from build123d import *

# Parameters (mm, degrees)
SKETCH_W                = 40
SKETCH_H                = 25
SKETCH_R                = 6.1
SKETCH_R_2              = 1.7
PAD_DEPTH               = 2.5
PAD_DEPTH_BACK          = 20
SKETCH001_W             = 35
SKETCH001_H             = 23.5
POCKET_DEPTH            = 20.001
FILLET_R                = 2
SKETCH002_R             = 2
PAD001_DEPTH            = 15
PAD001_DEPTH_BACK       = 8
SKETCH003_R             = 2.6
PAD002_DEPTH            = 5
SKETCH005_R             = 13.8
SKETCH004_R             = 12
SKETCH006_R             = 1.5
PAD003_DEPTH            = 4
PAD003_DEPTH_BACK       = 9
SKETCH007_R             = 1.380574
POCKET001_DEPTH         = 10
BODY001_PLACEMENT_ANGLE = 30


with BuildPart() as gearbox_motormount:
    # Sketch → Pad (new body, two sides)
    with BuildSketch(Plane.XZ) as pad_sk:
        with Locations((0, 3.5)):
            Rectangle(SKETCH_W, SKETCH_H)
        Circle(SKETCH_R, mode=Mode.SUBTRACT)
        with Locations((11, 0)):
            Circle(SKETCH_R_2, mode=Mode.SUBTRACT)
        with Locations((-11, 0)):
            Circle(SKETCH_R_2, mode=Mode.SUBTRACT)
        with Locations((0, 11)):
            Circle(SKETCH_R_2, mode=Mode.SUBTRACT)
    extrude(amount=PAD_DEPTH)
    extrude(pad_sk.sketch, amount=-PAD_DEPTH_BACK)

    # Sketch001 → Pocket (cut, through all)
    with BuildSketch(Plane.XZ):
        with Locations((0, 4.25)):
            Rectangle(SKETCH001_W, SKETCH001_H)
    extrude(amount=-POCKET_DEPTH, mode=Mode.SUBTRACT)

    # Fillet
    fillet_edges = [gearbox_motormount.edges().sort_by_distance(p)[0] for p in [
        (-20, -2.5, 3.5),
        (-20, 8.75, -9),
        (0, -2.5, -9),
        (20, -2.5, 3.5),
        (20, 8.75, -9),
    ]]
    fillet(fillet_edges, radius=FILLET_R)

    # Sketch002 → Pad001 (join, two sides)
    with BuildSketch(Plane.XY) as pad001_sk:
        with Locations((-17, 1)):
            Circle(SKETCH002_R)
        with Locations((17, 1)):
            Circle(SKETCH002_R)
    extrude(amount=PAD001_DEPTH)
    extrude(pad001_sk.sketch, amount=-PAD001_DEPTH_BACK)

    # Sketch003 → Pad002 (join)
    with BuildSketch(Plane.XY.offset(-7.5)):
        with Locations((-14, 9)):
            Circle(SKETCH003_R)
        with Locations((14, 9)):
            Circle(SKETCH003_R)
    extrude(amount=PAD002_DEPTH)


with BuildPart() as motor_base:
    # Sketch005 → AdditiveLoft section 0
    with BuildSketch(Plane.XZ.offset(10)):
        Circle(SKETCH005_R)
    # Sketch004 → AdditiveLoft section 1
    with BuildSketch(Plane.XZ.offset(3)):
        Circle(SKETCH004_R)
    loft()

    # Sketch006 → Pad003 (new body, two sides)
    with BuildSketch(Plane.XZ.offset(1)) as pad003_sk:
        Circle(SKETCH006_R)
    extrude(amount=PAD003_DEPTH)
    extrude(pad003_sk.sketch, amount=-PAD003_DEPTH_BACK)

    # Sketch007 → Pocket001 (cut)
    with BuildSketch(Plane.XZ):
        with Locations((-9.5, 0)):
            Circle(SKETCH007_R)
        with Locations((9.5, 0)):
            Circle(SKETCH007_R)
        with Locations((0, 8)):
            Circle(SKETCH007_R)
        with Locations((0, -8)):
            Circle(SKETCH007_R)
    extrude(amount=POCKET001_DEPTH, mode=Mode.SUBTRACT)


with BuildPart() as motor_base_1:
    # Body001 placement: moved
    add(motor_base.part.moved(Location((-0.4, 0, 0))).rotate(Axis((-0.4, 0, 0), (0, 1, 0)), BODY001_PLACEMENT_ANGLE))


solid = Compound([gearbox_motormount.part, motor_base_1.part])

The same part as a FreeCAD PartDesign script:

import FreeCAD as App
import Part
import Sketcher
from FreeCAD import Vector
Q = App.Units.Quantity


def edges_at(feature, points):
    """Names of the edges that pass closest to the given points."""
    edges = feature.Shape.Edges
    near = lambda p: min(range(len(edges)), key=lambda i: edges[i].distToShape(Part.Vertex(*p))[0])
    return sorted({f"Edge{near(p) + 1}" for p in points})


def add_polygon(sketch, points):
    """Adds a closed chain of lines whose ends are joined by coincident constraints."""
    first, n = sketch.GeometryCount, len(points)
    for a, b in zip(points, points[1:] + points[:1]):
        sketch.addGeometry(Part.LineSegment(App.Vector(*a, 0), App.Vector(*b, 0)), False)
    for i in range(n):
        sketch.addConstraint(Sketcher.Constraint("Coincident", first + i, 2, first + (i + 1) % n, 1))

doc = App.newDocument("Part")
body = doc.addObject("PartDesign::Body", "Body")

sketch1 = body.newObject("Sketcher::SketchObject", "Sketch")
sketch1.AttachmentSupport = (doc.getObject("XZ_Plane"), [""])
sketch1.MapMode = "FlatFace"
add_polygon(sketch1, [(-20, 16), (-20, -9), (20, -9), (20, 16)])
sketch1.addGeometry(Part.Circle(Vector(-11, 0, 0), Vector(0, 0, 1), 1.7), False)
sketch1.addGeometry(Part.Circle(Vector(0, 0, 0), Vector(0, 0, 1), 6.1), False)
sketch1.addGeometry(Part.Circle(Vector(11, 0, 0), Vector(0, 0, 1), 1.7), False)
sketch1.addGeometry(Part.Circle(Vector(0, 11, 0), Vector(0, 0, 1), 1.7), False)
sketch1.addConstraint([
    Sketcher.Constraint("Vertical", 0),
    Sketcher.Constraint("Horizontal", 1),
    Sketcher.Constraint("Vertical", 2),
    Sketcher.Constraint("Horizontal", 3),
    Sketcher.Constraint("Coincident", 5, 3, -1, 1),
    Sketcher.Constraint("Equal", 4, 6),
    Sketcher.Constraint("Equal", 6, 7),
    Sketcher.Constraint("Symmetric", 4, 3, 6, 3, -1, 1),
    Sketcher.Constraint("PointOnObject", 4, 3, -1),
    Sketcher.Constraint("PointOnObject", 7, 3, -2),
    Sketcher.Constraint("Diameter", 4, Q("3.4 mm")),
    Sketcher.Constraint("Diameter", 5, Q("12.2 mm")),
    Sketcher.Constraint("DistanceX", 1, 1, 1, 2, Q("40 mm")),
    Sketcher.Constraint("DistanceY", 0, 2, 0, 1, Q("25 mm")),
    Sketcher.Constraint("DistanceX", 4, 3, -1, 1, Q("11 mm")),
    Sketcher.Constraint("DistanceY", -1, 1, 7, 3, Q("11 mm")),
    Sketcher.Constraint("DistanceX", 0, 2, -1, 1, Q("20 mm")),
    Sketcher.Constraint("DistanceY", 0, 2, -1, 1, Q("9 mm")),
])
pad1 = body.newObject("PartDesign::Pad", "Pad")
pad1.Profile = sketch1
pad1.Type = "TwoLengths"
pad1.Length = 2.5
pad1.Length2 = 20

sketch2 = body.newObject("Sketcher::SketchObject", "Sketch001")
sketch2.AttachmentSupport = (doc.getObject("XZ_Plane"), [""])
sketch2.MapMode = "FlatFace"
add_polygon(sketch2, [(-18, 16), (-18, -8), (18, -8), (18, 16)])
sketch2.addConstraint([
    Sketcher.Constraint("Vertical", 0),
    Sketcher.Constraint("Horizontal", 1),
    Sketcher.Constraint("Vertical", 2),
    Sketcher.Constraint("Horizontal", 3),
    Sketcher.Constraint("DistanceX", 1, 1, 1, 2, Q("35 mm")),
    Sketcher.Constraint("DistanceY", 0, 2, 0, 1, Q("23.5 mm")),
    Sketcher.Constraint("DistanceY", -1, 1, 2, 2, Q("16 mm")),
    Sketcher.Constraint("DistanceX", 0, 2, -1, 1, Q("17.5 mm")),
])
pocket1 = body.newObject("PartDesign::Pocket", "Pocket")
pocket1.Profile = sketch2
pocket1.Type = "ThroughAll"
doc.recompute()

fillet = body.newObject("PartDesign::Fillet", "Fillet")
fillet.Base = (pocket1, edges_at(pocket1, [
    (-20, -2.5, 3.5),
    (-20, 8.75, -9),
    (0, -2.5, -9),
    (20, -2.5, 3.5),
    (20, 8.75, -9),
]))
fillet.Radius = 2

sketch3 = body.newObject("Sketcher::SketchObject", "Sketch002")
sketch3.AttachmentSupport = (doc.getObject("XY_Plane"), [""])
sketch3.MapMode = "FlatFace"
sketch3.addGeometry([
    Part.Circle(Vector(-17, 1, 0), Vector(0, 0, 1), 2),
    Part.Circle(Vector(17, 1, 0), Vector(0, 0, 1), 2),
], False)
sketch3.addConstraint([
    Sketcher.Constraint("Equal", 0, 1),
    Sketcher.Constraint("Symmetric", 0, 3, 1, 3, -2),
    Sketcher.Constraint("Diameter", 0, Q("4 mm")),
    Sketcher.Constraint("DistanceX", 0, 3, -1, 1, Q("17 mm")),
    Sketcher.Constraint("DistanceY", -1, 1, 0, 3, Q("1 mm")),
])
pad2 = body.newObject("PartDesign::Pad", "Pad001")
pad2.Profile = sketch3
pad2.Type = "TwoLengths"
pad2.Length = 15
pad2.Length2 = 8

sketch4 = body.newObject("Sketcher::SketchObject", "Sketch003")
sketch4.AttachmentSupport = (doc.getObject("XY_Plane"), [""])
sketch4.MapMode = "FlatFace"
sketch4.AttachmentOffset = App.Placement(Vector(0, 0, -7.5), App.Rotation())
sketch4.addGeometry([
    Part.Circle(Vector(-14, 9, 0), Vector(0, 0, 1), 2.6),
    Part.Circle(Vector(14, 9, 0), Vector(0, 0, 1), 2.6),
], False)
sketch4.addConstraint([
    Sketcher.Constraint("Equal", 0, 1),
    Sketcher.Constraint("Symmetric", 0, 3, 1, 3, -2),
    Sketcher.Constraint("Diameter", 0, Q("5.2 mm")),
    Sketcher.Constraint("DistanceX", 0, 3, -1, 1, Q("14 mm")),
    Sketcher.Constraint("DistanceY", -1, 1, 0, 3, Q("9 mm")),
])
pad3 = body.newObject("PartDesign::Pad", "Pad002")
pad3.Profile = sketch4
pad3.Length = 5
body2 = doc.addObject("PartDesign::Body", "Body001")

sketch5 = body2.newObject("Sketcher::SketchObject", "Sketch004")
sketch5.AttachmentSupport = (doc.getObject("XZ_Plane001"), [""])
sketch5.MapMode = "FlatFace"
sketch5.AttachmentOffset = App.Placement(Vector(0, 0, 10), App.Rotation())
sketch5.addGeometry(Part.Circle(Vector(0, 0, 0), Vector(0, 0, 1), 14), False)
sketch5.addConstraint([
    Sketcher.Constraint("Coincident", 0, 3, -1, 1),
    Sketcher.Constraint("Diameter", 0, Q("27.6 mm")),
])

sketch6 = body2.newObject("Sketcher::SketchObject", "Sketch005")
sketch6.AttachmentSupport = (doc.getObject("XZ_Plane001"), [""])
sketch6.MapMode = "FlatFace"
sketch6.AttachmentOffset = App.Placement(Vector(0, 0, 3), App.Rotation())
sketch6.addGeometry(Part.Circle(Vector(0, 0, 0), Vector(0, 0, 1), 12), False)
sketch6.addConstraint([
    Sketcher.Constraint("Coincident", 0, 3, -1, 1),
    Sketcher.Constraint("Diameter", 0, Q("24 mm")),
])

additiveloft = body2.newObject("PartDesign::AdditiveLoft", "AdditiveLoft")
additiveloft.Profile = sketch5
additiveloft.Sections = [sketch6]

sketch7 = body2.newObject("Sketcher::SketchObject", "Sketch006")
sketch7.AttachmentSupport = (doc.getObject("XZ_Plane001"), [""])
sketch7.MapMode = "FlatFace"
sketch7.AttachmentOffset = App.Placement(Vector(0, 0, 1), App.Rotation())
sketch7.addGeometry(Part.Circle(Vector(0, 0, 0), Vector(0, 0, 1), 1.5), False)
sketch7.addConstraint([
    Sketcher.Constraint("Coincident", 0, 3, -1, 1),
    Sketcher.Constraint("Diameter", 0, Q("3 mm")),
])
pad4 = body2.newObject("PartDesign::Pad", "Pad003")
pad4.Profile = sketch7
pad4.Type = "TwoLengths"
pad4.Length = 4
pad4.Length2 = 9

sketch8 = body2.newObject("Sketcher::SketchObject", "Sketch007")
sketch8.AttachmentSupport = (doc.getObject("XZ_Plane001"), [""])
sketch8.MapMode = "FlatFace"
sketch8.addGeometry([
    Part.Circle(Vector(-9.5, 0, 0), Vector(0, 0, 1), 1.4),
    Part.Circle(Vector(9.5, 0, 0), Vector(0, 0, 1), 1.4),
    Part.Circle(Vector(0, 8, 0), Vector(0, 0, 1), 1.4),
    Part.Circle(Vector(0, -8, 0), Vector(0, 0, 1), 1.4),
], False)
sketch8.addConstraint([
    Sketcher.Constraint("Equal", 0, 1),
    Sketcher.Constraint("Equal", 1, 2),
    Sketcher.Constraint("Equal", 2, 3),
    Sketcher.Constraint("Symmetric", 0, 3, 1, 3, -1, 1),
    Sketcher.Constraint("Symmetric", 2, 3, 3, 3, -1, 1),
    Sketcher.Constraint("PointOnObject", 0, 3, -1),
    Sketcher.Constraint("PointOnObject", 2, 3, -2),
    Sketcher.Constraint("DistanceY", -1, 1, 2, 3, Q("8 mm")),
    Sketcher.Constraint("DistanceX", 0, 3, 1, 3, Q("19 mm")),
    Sketcher.Constraint("Diameter", 0, Q("2.761148 mm")),
])
pocket2 = body2.newObject("PartDesign::Pocket", "Pocket001")
pocket2.Profile = sketch8
pocket2.Length = 10
pocket2.Reversed = True
body3 = doc.addObject("PartDesign::Body", "Body002")
doc.recompute()

body2.Placement = App.Placement(Vector(-0.4, 0, 0), App.Rotation(Vector(0, 1, 0), 30))
boolean = body3.newObject("PartDesign::Boolean", "Boolean")
boolean.Type = "Fuse"
boolean.addObjects([body2])

doc.recompute()
